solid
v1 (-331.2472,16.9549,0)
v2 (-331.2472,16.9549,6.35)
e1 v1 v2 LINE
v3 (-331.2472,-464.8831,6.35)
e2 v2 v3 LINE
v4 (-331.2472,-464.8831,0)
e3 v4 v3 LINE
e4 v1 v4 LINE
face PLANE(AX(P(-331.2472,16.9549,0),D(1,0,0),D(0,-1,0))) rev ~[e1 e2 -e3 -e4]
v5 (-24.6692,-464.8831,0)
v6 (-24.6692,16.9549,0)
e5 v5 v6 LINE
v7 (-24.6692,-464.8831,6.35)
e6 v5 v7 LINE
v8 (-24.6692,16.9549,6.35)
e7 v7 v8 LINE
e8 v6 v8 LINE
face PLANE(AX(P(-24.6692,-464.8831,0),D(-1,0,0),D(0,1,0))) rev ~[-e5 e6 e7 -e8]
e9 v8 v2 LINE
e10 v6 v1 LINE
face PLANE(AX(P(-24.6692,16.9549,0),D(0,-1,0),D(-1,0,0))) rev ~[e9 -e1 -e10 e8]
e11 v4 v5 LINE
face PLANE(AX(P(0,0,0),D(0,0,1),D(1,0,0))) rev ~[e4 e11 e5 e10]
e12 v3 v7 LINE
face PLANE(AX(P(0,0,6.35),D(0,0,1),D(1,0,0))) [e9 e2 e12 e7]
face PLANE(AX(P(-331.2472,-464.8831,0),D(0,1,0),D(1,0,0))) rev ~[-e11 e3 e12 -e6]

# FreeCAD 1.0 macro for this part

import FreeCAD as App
import Part
import Sketcher
from FreeCAD import Vector
Q = App.Units.Quantity

doc = App.newDocument("Part")
body = doc.addObject("PartDesign::Body", "Body")

sketch1 = body.newObject("Sketcher::SketchObject", "Sketch")
sketch1.AttachmentSupport = (doc.getObject("XY_Plane"), [""])
sketch1.MapMode = "FlatFace"
sketch1.addGeometry([
    Part.LineSegment(Vector(-25, -465, 0), Vector(-25, 17, 0)),
    Part.LineSegment(Vector(-25, 17, 0), Vector(-331, 17, 0)),
    Part.LineSegment(Vector(-331, 17, 0), Vector(-331, -465, 0)),
    Part.LineSegment(Vector(-331, -465, 0), Vector(-25, -465, 0)),
], False)
sketch1.addConstraint([
    Sketcher.Constraint("Coincident", 0, 2, 1, 1),
    Sketcher.Constraint("Coincident", 1, 2, 2, 1),
    Sketcher.Constraint("Coincident", 2, 2, 3, 1),
    Sketcher.Constraint("Coincident", 3, 2, 0, 1),
    Sketcher.Constraint("Vertical", 0),
    Sketcher.Constraint("Horizontal", 1),
    Sketcher.Constraint("Vertical", 2),
    Sketcher.Constraint("Horizontal", 3),
    Sketcher.Constraint("DistanceX", 1, 2, 1, 1, Q("12.07 in")),
    Sketcher.Constraint("DistanceY", 0, 1, 0, 2, Q("18.97 in")),
    Sketcher.Constraint("DistanceX", 0, 2, -1, 1, Q("24.6692 mm")),
    Sketcher.Constraint("DistanceY", -1, 1, 0, 2, Q("16.955 mm")),
])
pad1 = body.newObject("PartDesign::Pad", "Pad")
pad1.Profile = sketch1
pad1.Length = Q("0.25 in")

doc.recompute()
